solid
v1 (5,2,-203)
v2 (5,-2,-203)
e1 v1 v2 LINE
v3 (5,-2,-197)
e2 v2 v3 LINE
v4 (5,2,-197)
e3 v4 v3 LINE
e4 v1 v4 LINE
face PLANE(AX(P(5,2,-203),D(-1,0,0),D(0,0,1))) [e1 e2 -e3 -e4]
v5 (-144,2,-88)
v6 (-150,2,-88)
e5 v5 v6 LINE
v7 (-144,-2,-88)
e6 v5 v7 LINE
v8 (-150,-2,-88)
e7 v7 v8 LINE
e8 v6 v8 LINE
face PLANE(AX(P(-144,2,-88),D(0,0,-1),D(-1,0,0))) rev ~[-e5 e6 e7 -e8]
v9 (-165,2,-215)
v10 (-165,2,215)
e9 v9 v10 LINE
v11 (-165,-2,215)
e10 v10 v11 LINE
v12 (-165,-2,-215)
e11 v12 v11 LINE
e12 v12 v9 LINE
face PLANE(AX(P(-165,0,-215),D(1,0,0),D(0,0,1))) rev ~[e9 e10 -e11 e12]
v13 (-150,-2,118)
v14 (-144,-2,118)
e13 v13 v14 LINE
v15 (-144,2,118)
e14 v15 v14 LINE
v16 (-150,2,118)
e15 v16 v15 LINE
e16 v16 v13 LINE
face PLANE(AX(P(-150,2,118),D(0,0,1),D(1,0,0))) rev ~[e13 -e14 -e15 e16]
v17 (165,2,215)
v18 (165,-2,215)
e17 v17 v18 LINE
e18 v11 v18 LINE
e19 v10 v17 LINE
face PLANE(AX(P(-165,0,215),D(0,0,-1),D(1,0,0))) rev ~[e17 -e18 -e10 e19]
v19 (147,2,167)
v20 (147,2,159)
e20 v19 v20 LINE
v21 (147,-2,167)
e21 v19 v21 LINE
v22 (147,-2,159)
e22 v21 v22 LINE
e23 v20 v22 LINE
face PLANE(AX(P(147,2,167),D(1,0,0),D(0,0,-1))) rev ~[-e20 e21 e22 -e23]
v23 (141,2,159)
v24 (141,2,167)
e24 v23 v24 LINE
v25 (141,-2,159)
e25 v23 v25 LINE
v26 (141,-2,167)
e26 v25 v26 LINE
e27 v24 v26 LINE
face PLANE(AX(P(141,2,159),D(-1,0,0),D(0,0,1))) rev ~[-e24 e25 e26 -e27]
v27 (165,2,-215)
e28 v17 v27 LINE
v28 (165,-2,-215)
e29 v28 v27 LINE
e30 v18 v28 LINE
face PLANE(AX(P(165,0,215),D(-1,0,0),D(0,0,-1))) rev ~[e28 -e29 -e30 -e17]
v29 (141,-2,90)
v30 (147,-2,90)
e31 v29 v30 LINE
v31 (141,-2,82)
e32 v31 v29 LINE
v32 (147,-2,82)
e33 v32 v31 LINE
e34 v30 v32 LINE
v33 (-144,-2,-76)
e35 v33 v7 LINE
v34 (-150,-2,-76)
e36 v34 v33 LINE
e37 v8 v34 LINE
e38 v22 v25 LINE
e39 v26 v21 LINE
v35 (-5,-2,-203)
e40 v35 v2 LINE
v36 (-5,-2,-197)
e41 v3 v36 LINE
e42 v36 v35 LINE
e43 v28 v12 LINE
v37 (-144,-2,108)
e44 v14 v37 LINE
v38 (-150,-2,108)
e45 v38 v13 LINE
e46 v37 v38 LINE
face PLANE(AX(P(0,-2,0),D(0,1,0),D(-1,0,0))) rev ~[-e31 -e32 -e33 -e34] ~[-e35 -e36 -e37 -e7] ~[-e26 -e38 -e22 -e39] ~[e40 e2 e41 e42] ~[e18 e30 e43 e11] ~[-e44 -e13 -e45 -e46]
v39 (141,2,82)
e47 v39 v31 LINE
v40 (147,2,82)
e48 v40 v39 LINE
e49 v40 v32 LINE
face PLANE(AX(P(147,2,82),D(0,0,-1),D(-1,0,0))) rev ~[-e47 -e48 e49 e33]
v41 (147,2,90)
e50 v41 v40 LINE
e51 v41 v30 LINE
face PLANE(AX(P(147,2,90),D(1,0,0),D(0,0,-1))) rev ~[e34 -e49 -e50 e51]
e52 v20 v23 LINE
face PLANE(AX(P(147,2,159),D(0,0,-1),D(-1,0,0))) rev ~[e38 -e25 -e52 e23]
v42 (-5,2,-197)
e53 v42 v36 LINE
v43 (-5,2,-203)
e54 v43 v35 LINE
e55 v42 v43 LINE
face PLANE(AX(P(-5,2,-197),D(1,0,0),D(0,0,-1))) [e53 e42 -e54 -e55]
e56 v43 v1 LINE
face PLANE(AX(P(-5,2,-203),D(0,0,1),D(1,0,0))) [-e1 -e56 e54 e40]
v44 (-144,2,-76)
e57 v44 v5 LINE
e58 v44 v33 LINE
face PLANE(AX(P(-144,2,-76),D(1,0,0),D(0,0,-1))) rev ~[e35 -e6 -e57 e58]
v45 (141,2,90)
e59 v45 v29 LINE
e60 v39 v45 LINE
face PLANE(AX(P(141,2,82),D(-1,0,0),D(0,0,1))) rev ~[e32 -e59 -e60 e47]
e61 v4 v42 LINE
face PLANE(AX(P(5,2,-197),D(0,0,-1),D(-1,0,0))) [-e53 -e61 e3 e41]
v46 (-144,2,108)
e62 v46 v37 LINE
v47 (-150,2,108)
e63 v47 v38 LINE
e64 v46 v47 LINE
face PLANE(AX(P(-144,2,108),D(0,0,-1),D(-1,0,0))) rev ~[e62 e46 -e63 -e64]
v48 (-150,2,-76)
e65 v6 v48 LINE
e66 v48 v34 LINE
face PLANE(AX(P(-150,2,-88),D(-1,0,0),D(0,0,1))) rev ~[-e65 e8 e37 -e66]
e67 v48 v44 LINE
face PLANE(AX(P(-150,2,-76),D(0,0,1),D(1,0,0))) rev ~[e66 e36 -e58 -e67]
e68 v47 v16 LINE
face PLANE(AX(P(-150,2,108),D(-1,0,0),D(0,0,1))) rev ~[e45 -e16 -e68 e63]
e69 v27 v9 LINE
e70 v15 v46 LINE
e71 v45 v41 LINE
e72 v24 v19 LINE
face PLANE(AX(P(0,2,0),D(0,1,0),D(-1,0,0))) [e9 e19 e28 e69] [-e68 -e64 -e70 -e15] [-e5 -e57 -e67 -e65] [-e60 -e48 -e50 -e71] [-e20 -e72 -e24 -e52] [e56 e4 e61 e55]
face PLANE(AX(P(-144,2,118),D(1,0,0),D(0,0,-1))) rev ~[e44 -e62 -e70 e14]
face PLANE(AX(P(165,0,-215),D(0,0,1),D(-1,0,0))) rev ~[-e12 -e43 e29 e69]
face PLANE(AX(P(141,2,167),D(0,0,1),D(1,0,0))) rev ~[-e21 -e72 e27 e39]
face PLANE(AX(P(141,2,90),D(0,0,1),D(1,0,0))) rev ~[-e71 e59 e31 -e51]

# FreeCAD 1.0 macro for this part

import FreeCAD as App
import Part
import Sketcher
from FreeCAD import Vector
Q = App.Units.Quantity


def add_polygon(sketch, points):
    """Adds a closed chain of lines whose ends are joined by coincident constraints."""
    first, n = sketch.GeometryCount, len(points)
    for a, b in zip(points, points[1:] + points[:1]):
        sketch.addGeometry(Part.LineSegment(App.Vector(*a, 0), App.Vector(*b, 0)), False)
    for i in range(n):
        sketch.addConstraint(Sketcher.Constraint("Coincident", first + i, 2, first + (i + 1) % n, 1))

doc = App.newDocument("Part")
params = doc.addObject("Spreadsheet::Sheet", "Params")
for row, (alias, value) in enumerate([
    ("sketch1_width", "330 mm"),
    ("sketch1_height", "430 mm"),
    ("pad1_length", "4 mm"),
    ("sketch2_width", "6 mm"),
    ("sketch2_height", "8 mm"),
    ("sketch2_height2", "10 mm"),
    ("sketch3_width", "6 mm"),
    ("sketch3_height", "12 mm"),
    ("sketch4_width", "10 mm"),
    ("sketch4_height", "6 mm"),
], start=1):
    params.set(f"A{row}", alias)
    params.set(f"B{row}", "=" + value)
    params.setAlias(f"B{row}", alias)

body = doc.addObject("PartDesign::Body", "Body")

# Sketch on XZ plane
sketch1 = body.newObject("Sketcher::SketchObject", "Sketch")
sketch1.AttachmentSupport = (doc.getObject("XZ_Plane"), [""])
sketch1.MapMode = "FlatFace"
add_polygon(sketch1, [(165, 215), (165, -215), (-165, -215), (-165, 215)])  # lines 0-3
sketch1.addConstraint(Sketcher.Constraint("Vertical", 0))
sketch1.addConstraint(Sketcher.Constraint("Horizontal", 1))
sketch1.addConstraint(Sketcher.Constraint("Vertical", 2))
sketch1.addConstraint(Sketcher.Constraint("Horizontal", 3))
sketch1.addConstraint(Sketcher.Constraint("Symmetric", 0, 2, 2, 2, -1, 1))
sketch1.addConstraint(Sketcher.Constraint("DistanceX", 1, 2, 1, 1, Q("330 mm")))
sketch1.addConstraint(Sketcher.Constraint("DistanceY", 0, 2, 0, 1, Q("430 mm")))
sketch1.setExpression("Constraints[9]", "Params.sketch1_width")
sketch1.setExpression("Constraints[10]", "Params.sketch1_height")
pad1 = body.newObject("PartDesign::Pad", "Pad")
pad1.Profile = sketch1
pad1.setExpression("Length", "Params.pad1_length")
pad1.Midplane = True

# Sketch on XZ plane
sketch2 = body.newObject("Sketcher::SketchObject", "Sketch001")
sketch2.AttachmentSupport = (doc.getObject("XZ_Plane"), [""])
sketch2.MapMode = "FlatFace"
sketch2.AttachmentOffset = App.Placement(Vector(0, 0, -2), App.Rotation())
add_polygon(sketch2, [(147, 167), (147, 159), (141, 159), (141, 167)])  # lines 0-3
add_polygon(sketch2, [(147, 90), (147, 82), (141, 82), (141, 90)])  # lines 4-7
add_polygon(sketch2, [(-150, 108), (-150, 118), (-144, 118), (-144, 108)])  # lines 8-11
sketch2.addConstraint(Sketcher.Constraint("Vertical", 0))
sketch2.addConstraint(Sketcher.Constraint("Horizontal", 1))
sketch2.addConstraint(Sketcher.Constraint("Vertical", 2))
sketch2.addConstraint(Sketcher.Constraint("Horizontal", 3))
sketch2.addConstraint(Sketcher.Constraint("Vertical", 4))
sketch2.addConstraint(Sketcher.Constraint("Horizontal", 5))
sketch2.addConstraint(Sketcher.Constraint("Vertical", 6))
sketch2.addConstraint(Sketcher.Constraint("Horizontal", 7))
sketch2.addConstraint(Sketcher.Constraint("Vertical", 8))
sketch2.addConstraint(Sketcher.Constraint("Horizontal", 9))
sketch2.addConstraint(Sketcher.Constraint("Vertical", 10))
sketch2.addConstraint(Sketcher.Constraint("Horizontal", 11))
sketch2.addConstraint(Sketcher.Constraint("Vertical", 3, 2, 4, 2))
sketch2.addConstraint(Sketcher.Constraint("Vertical", 2, 2, 5, 2))
sketch2.addConstraint(Sketcher.Constraint("Equal", 7, 9))
sketch2.addConstraint(Sketcher.Constraint("Equal", 2, 4))
sketch2.addConstraint(Sketcher.Constraint("DistanceX", 1, 2, 1, 1, Q("6 mm")))
sketch2.addConstraint(Sketcher.Constraint("DistanceY", 0, 2, 0, 1, Q("8 mm")))
sketch2.addConstraint(Sketcher.Constraint("DistanceY", 8, 1, 8, 2, Q("10 mm")))
sketch2.addConstraint(Sketcher.Constraint("DistanceY", 6, 2, 10, 2, Q("18 mm")))
sketch2.addConstraint(Sketcher.Constraint("DistanceX", -1, 1, 0, 2, Q("147 mm")))
sketch2.addConstraint(Sketcher.Constraint("DistanceY", -1, 1, 0, 2, Q("159 mm")))
sketch2.addConstraint(Sketcher.Constraint("DistanceY", -1, 1, 4, 2, Q("82 mm")))
sketch2.addConstraint(Sketcher.Constraint("DistanceX", 8, 2, -1, 1, Q("150 mm")))
sketch2.setExpression("Constraints[28]", "Params.sketch2_width")
sketch2.setExpression("Constraints[29]", "Params.sketch2_height")
sketch2.setExpression("Constraints[30]", "Params.sketch2_height2")
pocket1 = body.newObject("PartDesign::Pocket", "Pocket")
pocket1.Profile = sketch2
pocket1.Type = "ThroughAll"
pocket1.Reversed = True

# Sketch on XZ plane
sketch3 = body.newObject("Sketcher::SketchObject", "Sketch002")
sketch3.AttachmentSupport = (doc.getObject("XZ_Plane"), [""])
sketch3.MapMode = "FlatFace"
sketch3.AttachmentOffset = App.Placement(Vector(0, 0, -2), App.Rotation())
add_polygon(sketch3, [(-150, -88), (-150, -76), (-144, -76), (-144, -88)])  # lines 0-3
sketch3.addConstraint(Sketcher.Constraint("Vertical", 0))
sketch3.addConstraint(Sketcher.Constraint("Horizontal", 1))
sketch3.addConstraint(Sketcher.Constraint("Vertical", 2))
sketch3.addConstraint(Sketcher.Constraint("Horizontal", 3))
sketch3.addConstraint(Sketcher.Constraint("DistanceX", 1, 1, 1, 2, Q("6 mm")))
sketch3.addConstraint(Sketcher.Constraint("DistanceY", 0, 1, 0, 2, Q("12 mm")))
sketch3.addConstraint(Sketcher.Constraint("DistanceX", 0, 2, -1, 1, Q("150 mm")))
sketch3.addConstraint(Sketcher.Constraint("DistanceY", 0, 2, -1, 1, Q("76 mm")))
sketch3.setExpression("Constraints[8]", "Params.sketch3_width")
sketch3.setExpression("Constraints[9]", "Params.sketch3_height")
pocket2 = body.newObject("PartDesign::Pocket", "Pocket001")
pocket2.Profile = sketch3
pocket2.Type = "ThroughAll"
pocket2.Reversed = True

# Sketch on XZ plane
sketch4 = body.newObject("Sketcher::SketchObject", "Sketch003")
sketch4.AttachmentSupport = (doc.getObject("XZ_Plane"), [""])
sketch4.MapMode = "FlatFace"
sketch4.AttachmentOffset = App.Placement(Vector(0, 0, -2), App.Rotation())
add_polygon(sketch4, [(-5, -197), (5, -197), (5, -203), (-5, -203)])  # lines 0-3
sketch4.addConstraint(Sketcher.Constraint("Horizontal", 0))
sketch4.addConstraint(Sketcher.Constraint("Vertical", 1))
sketch4.addConstraint(Sketcher.Constraint("Horizontal", 2))
sketch4.addConstraint(Sketcher.Constraint("Vertical", 3))
sketch4.addConstraint(Sketcher.Constraint("DistanceX", 0, 1, 0, 2, Q("10 mm")))
sketch4.addConstraint(Sketcher.Constraint("DistanceY", 1, 2, 1, 1, Q("6 mm")))
sketch4.addConstraint(Sketcher.Constraint("DistanceX", -1, 1, 0, 2, Q("5 mm")))
sketch4.addConstraint(Sketcher.Constraint("DistanceY", 0, 2, -1, 1, Q("197 mm")))
sketch4.setExpression("Constraints[8]", "Params.sketch4_width")
sketch4.setExpression("Constraints[9]", "Params.sketch4_height")
pocket3 = body.newObject("PartDesign::Pocket", "Pocket002")
pocket3.Profile = sketch4
pocket3.Type = "ThroughAll"
pocket3.Reversed = True

doc.recompute()
